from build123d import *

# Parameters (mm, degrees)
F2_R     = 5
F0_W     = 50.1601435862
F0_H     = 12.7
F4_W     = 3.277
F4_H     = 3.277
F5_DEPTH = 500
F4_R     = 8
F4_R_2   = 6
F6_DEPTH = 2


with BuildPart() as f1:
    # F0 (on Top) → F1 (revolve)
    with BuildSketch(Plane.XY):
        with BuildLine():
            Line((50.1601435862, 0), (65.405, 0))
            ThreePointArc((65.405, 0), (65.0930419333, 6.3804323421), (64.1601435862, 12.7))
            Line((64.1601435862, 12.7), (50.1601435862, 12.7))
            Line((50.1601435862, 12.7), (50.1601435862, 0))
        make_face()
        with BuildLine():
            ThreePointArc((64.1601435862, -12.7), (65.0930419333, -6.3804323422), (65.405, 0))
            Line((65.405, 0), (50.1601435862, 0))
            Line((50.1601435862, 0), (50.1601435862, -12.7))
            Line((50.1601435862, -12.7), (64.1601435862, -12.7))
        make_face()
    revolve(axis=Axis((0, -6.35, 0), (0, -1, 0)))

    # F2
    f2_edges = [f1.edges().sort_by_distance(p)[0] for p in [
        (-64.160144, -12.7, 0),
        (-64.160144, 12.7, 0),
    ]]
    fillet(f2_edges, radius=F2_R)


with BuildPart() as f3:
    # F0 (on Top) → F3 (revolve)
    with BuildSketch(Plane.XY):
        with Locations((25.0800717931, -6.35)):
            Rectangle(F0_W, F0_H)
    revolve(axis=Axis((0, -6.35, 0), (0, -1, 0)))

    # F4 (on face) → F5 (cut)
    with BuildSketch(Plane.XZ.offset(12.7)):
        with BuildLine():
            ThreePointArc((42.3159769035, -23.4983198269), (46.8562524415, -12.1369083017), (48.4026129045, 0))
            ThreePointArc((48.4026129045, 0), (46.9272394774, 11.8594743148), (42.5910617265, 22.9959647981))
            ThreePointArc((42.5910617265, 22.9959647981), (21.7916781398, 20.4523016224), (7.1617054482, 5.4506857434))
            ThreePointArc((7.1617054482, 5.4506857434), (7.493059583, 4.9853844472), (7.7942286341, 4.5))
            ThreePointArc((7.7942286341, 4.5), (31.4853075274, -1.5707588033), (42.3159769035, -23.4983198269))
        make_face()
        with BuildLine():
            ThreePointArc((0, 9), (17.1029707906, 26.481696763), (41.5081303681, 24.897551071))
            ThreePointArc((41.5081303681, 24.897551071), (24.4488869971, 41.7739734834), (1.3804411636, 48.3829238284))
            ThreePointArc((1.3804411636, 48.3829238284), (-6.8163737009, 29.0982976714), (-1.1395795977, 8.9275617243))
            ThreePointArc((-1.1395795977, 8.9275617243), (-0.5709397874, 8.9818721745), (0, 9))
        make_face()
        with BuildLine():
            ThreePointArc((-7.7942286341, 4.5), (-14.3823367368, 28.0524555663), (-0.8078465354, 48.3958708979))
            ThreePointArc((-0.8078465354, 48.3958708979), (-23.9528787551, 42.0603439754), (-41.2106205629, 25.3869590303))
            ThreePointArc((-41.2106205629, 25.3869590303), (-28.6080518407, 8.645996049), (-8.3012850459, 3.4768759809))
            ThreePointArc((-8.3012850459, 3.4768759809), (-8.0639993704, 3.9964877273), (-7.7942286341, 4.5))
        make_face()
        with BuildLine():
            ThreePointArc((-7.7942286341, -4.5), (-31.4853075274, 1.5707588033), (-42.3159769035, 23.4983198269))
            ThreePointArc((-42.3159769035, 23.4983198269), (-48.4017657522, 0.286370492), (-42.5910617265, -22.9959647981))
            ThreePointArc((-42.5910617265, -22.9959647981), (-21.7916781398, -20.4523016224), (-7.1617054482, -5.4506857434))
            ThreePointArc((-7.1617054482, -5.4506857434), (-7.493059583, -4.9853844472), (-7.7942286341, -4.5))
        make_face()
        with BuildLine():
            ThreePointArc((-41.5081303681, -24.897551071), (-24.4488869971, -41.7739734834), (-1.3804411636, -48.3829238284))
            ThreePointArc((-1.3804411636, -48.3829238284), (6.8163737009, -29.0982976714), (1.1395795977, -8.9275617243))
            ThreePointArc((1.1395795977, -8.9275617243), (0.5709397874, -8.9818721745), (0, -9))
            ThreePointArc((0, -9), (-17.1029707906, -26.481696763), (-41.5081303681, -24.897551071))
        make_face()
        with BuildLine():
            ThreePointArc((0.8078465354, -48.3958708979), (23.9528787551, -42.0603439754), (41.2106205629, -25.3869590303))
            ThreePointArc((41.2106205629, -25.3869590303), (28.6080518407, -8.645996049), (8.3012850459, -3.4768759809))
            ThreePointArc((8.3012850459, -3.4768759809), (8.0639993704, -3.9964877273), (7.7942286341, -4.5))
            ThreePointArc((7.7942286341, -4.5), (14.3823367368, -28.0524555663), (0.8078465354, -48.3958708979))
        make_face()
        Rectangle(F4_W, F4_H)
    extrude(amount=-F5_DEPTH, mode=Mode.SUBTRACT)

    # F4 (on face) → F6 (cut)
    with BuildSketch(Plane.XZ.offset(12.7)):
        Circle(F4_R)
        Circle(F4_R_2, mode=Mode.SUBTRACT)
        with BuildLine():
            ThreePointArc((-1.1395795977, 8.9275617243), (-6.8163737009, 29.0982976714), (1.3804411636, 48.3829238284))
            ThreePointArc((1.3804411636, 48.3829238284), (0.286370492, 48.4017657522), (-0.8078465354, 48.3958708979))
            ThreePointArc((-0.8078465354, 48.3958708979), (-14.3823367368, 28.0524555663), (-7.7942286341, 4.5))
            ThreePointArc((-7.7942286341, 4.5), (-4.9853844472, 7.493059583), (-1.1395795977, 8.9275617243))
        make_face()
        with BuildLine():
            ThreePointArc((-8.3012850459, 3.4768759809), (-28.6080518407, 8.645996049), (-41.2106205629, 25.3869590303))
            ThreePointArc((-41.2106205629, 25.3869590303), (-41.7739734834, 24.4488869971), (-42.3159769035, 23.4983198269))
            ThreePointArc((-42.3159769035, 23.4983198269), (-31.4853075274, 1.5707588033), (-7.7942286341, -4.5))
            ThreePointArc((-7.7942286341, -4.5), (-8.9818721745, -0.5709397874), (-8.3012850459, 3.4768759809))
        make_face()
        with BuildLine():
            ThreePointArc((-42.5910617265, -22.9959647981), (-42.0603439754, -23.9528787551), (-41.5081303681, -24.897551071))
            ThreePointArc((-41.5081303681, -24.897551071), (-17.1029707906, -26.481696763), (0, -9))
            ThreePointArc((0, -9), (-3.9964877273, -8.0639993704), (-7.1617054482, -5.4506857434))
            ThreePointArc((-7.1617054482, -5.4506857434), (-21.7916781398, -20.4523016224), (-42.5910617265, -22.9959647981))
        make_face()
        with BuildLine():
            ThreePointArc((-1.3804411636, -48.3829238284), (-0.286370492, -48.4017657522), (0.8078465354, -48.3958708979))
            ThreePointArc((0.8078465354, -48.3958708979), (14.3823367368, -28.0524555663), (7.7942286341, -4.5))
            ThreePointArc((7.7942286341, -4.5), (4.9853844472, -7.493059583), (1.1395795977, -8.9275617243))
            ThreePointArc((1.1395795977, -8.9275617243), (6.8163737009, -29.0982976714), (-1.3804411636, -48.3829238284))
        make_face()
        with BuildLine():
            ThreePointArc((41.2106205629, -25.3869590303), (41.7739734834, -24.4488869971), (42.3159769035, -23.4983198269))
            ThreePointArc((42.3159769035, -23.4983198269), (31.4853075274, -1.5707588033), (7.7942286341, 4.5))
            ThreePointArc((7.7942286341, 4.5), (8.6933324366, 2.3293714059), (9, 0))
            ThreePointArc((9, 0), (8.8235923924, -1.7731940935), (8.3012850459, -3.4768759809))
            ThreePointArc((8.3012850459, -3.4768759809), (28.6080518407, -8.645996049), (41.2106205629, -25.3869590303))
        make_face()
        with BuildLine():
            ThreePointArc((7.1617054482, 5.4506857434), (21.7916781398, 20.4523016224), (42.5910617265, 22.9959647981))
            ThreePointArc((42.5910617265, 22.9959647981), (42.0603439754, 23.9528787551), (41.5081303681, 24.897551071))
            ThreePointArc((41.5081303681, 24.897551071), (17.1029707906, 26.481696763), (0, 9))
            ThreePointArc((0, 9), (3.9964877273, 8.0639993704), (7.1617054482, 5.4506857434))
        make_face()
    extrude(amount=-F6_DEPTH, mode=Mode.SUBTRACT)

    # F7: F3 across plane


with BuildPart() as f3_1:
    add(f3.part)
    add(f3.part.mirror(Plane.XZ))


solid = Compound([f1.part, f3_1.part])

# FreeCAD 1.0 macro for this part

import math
import FreeCAD as App
import Part
import Sketcher
from FreeCAD import Vector


def edges_at(feature, points):
    """Names of the edges that pass closest to the given points."""
    edges = feature.Shape.Edges
    near = lambda p: min(range(len(edges)), key=lambda i: edges[i].distToShape(Part.Vertex(*p))[0])
    return sorted({f"Edge{near(p) + 1}" for p in points})

doc = App.newDocument("Part")
body = doc.addObject("PartDesign::Body", "Body")

sketch1 = body.newObject("Sketcher::SketchObject", "Sketch")
sketch1.AttachmentSupport = (doc.getObject("XY_Plane"), [""])
sketch1.MapMode = "FlatFace"
sketch1.addGeometry(Part.ArcOfCircle(Part.Circle(Vector(0, 0, 0), Vector(0, 0, 1), 65.405), math.radians(0), math.radians(11.196519)), False)
sketch1.addGeometry(Part.LineSegment(Vector(64.160144, 12.7, 0), Vector(50.160144, 12.7, 0)), False)
sketch1.addGeometry(Part.LineSegment(Vector(50.160144, 12.7, 0), Vector(50.160144, -12.7, 0)), False)
sketch1.addGeometry(Part.LineSegment(Vector(50.160144, -12.7, 0), Vector(64.160144, -12.7, 0)), False)
sketch1.addGeometry(Part.ArcOfCircle(Part.Circle(Vector(0, 0, 0), Vector(0, 0, 1), 65.405), math.radians(-11.196519), math.radians(0)), False)
sketch1.addConstraint(Sketcher.Constraint("Coincident", 0, 2, 1, 1))
sketch1.addConstraint(Sketcher.Constraint("Coincident", 1, 2, 2, 1))
sketch1.addConstraint(Sketcher.Constraint("Coincident", 2, 2, 3, 1))
sketch1.addConstraint(Sketcher.Constraint("Coincident", 3, 2, 4, 1))
sketch1.addConstraint(Sketcher.Constraint("Tangent", 4, 2, 0, 1))
sketch1.addConstraint(Sketcher.Constraint("Horizontal", 1))
sketch1.addConstraint(Sketcher.Constraint("Vertical", 2))
sketch1.addConstraint(Sketcher.Constraint("Horizontal", 3))
sketch1.addConstraint(Sketcher.Constraint("Coincident", 0, 3, -1, 1))
sketch1.addConstraint(Sketcher.Constraint("Equal", 0, 4))
sketch1.addConstraint(Sketcher.Constraint("PointOnObject", 4, 2, -1))
sketch1.addConstraint(Sketcher.Constraint("Vertical", 0, 2, 3, 2))
sketch1.addConstraint(Sketcher.Constraint("DistanceX", 1, 2, 1, 1, 14.0))
sketch1.addConstraint(Sketcher.Constraint("DistanceY", 2, 2, 2, 1, 25.4))
sketch1.addConstraint(Sketcher.Constraint("Radius", 0, 65.405))
revolution = body.newObject("PartDesign::Revolution", "Revolution")
revolution.Profile = sketch1
revolution.ReferenceAxis = (sketch1, ["V_Axis"])
revolution.Angle = 360
doc.recompute()

fillet = body.newObject("PartDesign::Fillet", "Fillet")
fillet.Base = (revolution, edges_at(revolution, [(-64.16, -12.7, 0), (-64.16, 12.7, 0)]))
fillet.Radius = 5
body2 = doc.addObject("PartDesign::Body", "Body001")

sketch2 = body2.newObject("Sketcher::SketchObject", "Sketch001")
sketch2.AttachmentSupport = (doc.getObject("XY_Plane001"), [""])
sketch2.MapMode = "FlatFace"
sketch2.addGeometry(Part.LineSegment(Vector(0, 0, 0), Vector(0, -12.7, 0)), False)
sketch2.addGeometry(Part.LineSegment(Vector(0, -12.7, 0), Vector(50.160144, -12.7, 0)), False)
sketch2.addGeometry(Part.LineSegment(Vector(50.160144, -12.7, 0), Vector(50.160144, 0, 0)), False)
sketch2.addGeometry(Part.LineSegment(Vector(50.160144, 0, 0), Vector(0, 0, 0)), False)
sketch2.addConstraint(Sketcher.Constraint("Coincident", 0, 2, 1, 1))
sketch2.addConstraint(Sketcher.Constraint("Coincident", 1, 2, 2, 1))
sketch2.addConstraint(Sketcher.Constraint("Coincident", 2, 2, 3, 1))
sketch2.addConstraint(Sketcher.Constraint("Coincident", 3, 2, 0, 1))
sketch2.addConstraint(Sketcher.Constraint("Vertical", 0))
sketch2.addConstraint(Sketcher.Constraint("Horizontal", 1))
sketch2.addConstraint(Sketcher.Constraint("Vertical", 2))
sketch2.addConstraint(Sketcher.Constraint("Horizontal", 3))
sketch2.addConstraint(Sketcher.Constraint("Coincident", 3, 2, -1, 1))
sketch2.addConstraint(Sketcher.Constraint("DistanceY", 0, 2, 0, 1, 12.7))
sketch2.addConstraint(Sketcher.Constraint("DistanceX", 1, 1, 1, 2, 50.160144))
revolution2 = body2.newObject("PartDesign::Revolution", "Revolution001")
revolution2.Profile = sketch2
revolution2.ReferenceAxis = (sketch2, ["V_Axis"])
revolution2.Angle = 360

sketch3 = body2.newObject("Sketcher::SketchObject", "Sketch002")
sketch3.AttachmentSupport = (doc.getObject("XZ_Plane001"), [""])
sketch3.MapMode = "FlatFace"
sketch3.AttachmentOffset = App.Placement(Vector(0, 0, 12.7), App.Rotation())
sketch3.addGeometry(Part.ArcOfCircle(Part.Circle(Vector(0, 0, 0), Vector(0, 0, 1), 48.402613), math.radians(-29.043681), math.radians(0)), False)
sketch3.addGeometry(Part.ArcOfCircle(Part.Circle(Vector(0, 0, 0), Vector(0, 0, 1), 48.402613), math.radians(0), math.radians(28.365704)), False)
sketch3.addGeometry(Part.ArcOfCircle(Part.Circle(Vector(35.808351, -7.851704, 0), Vector(0, 0, 1), 31.584551), math.radians(77.599272), math.radians(155.091674)), False)
sketch3.addGeometry(Part.ArcOfCircle(Part.Circle(Vector(0, 0, 0), Vector(0, 0, 1), 9), math.radians(30), math.radians(37.274316)), False)
sketch3.addGeometry(Part.ArcOfCircle(Part.Circle(Vector(13.031462, -24.324232, 0), Vector(0, 0, 1), 29.296159), math.radians(1.615486), math.radians(100.298042)), False)
sketch3.addGeometry(Part.ArcOfCircle(Part.Circle(Vector(27.581134, -0.876539, 0), Vector(0, 0, 1), 29.296159), math.radians(61.615486), math.radians(160.298042)), False)
sketch3.addGeometry(Part.ArcOfCircle(Part.Circle(Vector(0, 0, 0), Vector(0, 0, 1), 48.402613), math.radians(30.956319), math.radians(88.365704)), False)
sketch3.addGeometry(Part.ArcOfCircle(Part.Circle(Vector(24.703951, 27.085089, 0), Vector(0, 0, 1), 31.584551), math.radians(137.599272), math.radians(215.091674)), False)
sketch3.addGeometry(Part.ArcOfCircle(Part.Circle(Vector(0, 0, 0), Vector(0, 0, 1), 9), math.radians(90), math.radians(97.274316)), False)
sketch3.addGeometry(Part.ArcOfCircle(Part.Circle(Vector(14.549672, 23.447693, 0), Vector(0, 0, 1), 29.296159), math.radians(121.615486), math.radians(220.298042)), False)
sketch3.addGeometry(Part.ArcOfCircle(Part.Circle(Vector(0, 0, 0), Vector(0, 0, 1), 48.402613), math.radians(90.956319), math.radians(148.365704)), False)
sketch3.addGeometry(Part.ArcOfCircle(Part.Circle(Vector(-11.1044, 34.936793, 0), Vector(0, 0, 1), 31.584551), math.radians(-162.400728), math.radians(-84.908326)), False)
sketch3.addGeometry(Part.ArcOfCircle(Part.Circle(Vector(0, 0, 0), Vector(0, 0, 1), 9), math.radians(150), math.radians(157.274316)), False)
sketch3.addGeometry(Part.ArcOfCircle(Part.Circle(Vector(-13.031462, 24.324232, 0), Vector(0, 0, 1), 29.296159), math.radians(-178.384514), math.radians(-79.701958)), False)
sketch3.addGeometry(Part.ArcOfCircle(Part.Circle(Vector(0, 0, 0), Vector(0, 0, 1), 48.402613), math.radians(150.956319), math.radians(208.365704)), False)
sketch3.addGeometry(Part.ArcOfCircle(Part.Circle(Vector(-35.808351, 7.851704, 0), Vector(0, 0, 1), 31.584551), math.radians(-102.400728), math.radians(-24.908326)), False)
sketch3.addGeometry(Part.ArcOfCircle(Part.Circle(Vector(0, 0, 0), Vector(0, 0, 1), 9), math.radians(-150), math.radians(-142.725684)), False)
sketch3.addGeometry(Part.ArcOfCircle(Part.Circle(Vector(0, 0, 0), Vector(0, 0, 1), 48.402613), math.radians(-149.043681), math.radians(-91.634296)), False)
sketch3.addGeometry(Part.ArcOfCircle(Part.Circle(Vector(-24.703951, -27.085089, 0), Vector(0, 0, 1), 31.584551), math.radians(-42.400728), math.radians(35.091674)), False)
sketch3.addGeometry(Part.ArcOfCircle(Part.Circle(Vector(0, 0, 0), Vector(0, 0, 1), 9), math.radians(-90), math.radians(-82.725684)), False)
sketch3.addGeometry(Part.ArcOfCircle(Part.Circle(Vector(-27.581134, 0.876539, 0), Vector(0, 0, 1), 29.296159), math.radians(-118.384514), math.radians(-19.701958)), False)
sketch3.addGeometry(Part.ArcOfCircle(Part.Circle(Vector(0, 0, 0), Vector(0, 0, 1), 48.402613), math.radians(-89.043681), math.radians(-31.634296)), False)
sketch3.addGeometry(Part.ArcOfCircle(Part.Circle(Vector(11.1044, -34.936793, 0), Vector(0, 0, 1), 31.584551), math.radians(17.599272), math.radians(95.091674)), False)
sketch3.addGeometry(Part.ArcOfCircle(Part.Circle(Vector(0, 0, 0), Vector(0, 0, 1), 9), math.radians(-30), math.radians(-22.725684)), False)
sketch3.addGeometry(Part.ArcOfCircle(Part.Circle(Vector(-14.549672, -23.447693, 0), Vector(0, 0, 1), 29.296159), math.radians(-58.384514), math.radians(40.298042)), False)
sketch3.addGeometry(Part.LineSegment(Vector(-1.6385, 1.6385, 0), Vector(-1.6385, -1.6385, 0)), False)
sketch3.addGeometry(Part.LineSegment(Vector(-1.6385, -1.6385, 0), Vector(1.6385, -1.6385, 0)), False)
sketch3.addGeometry(Part.LineSegment(Vector(1.6385, -1.6385, 0), Vector(1.6385, 1.6385, 0)), False)
sketch3.addGeometry(Part.LineSegment(Vector(1.6385, 1.6385, 0), Vector(-1.6385, 1.6385, 0)), False)
sketch3.addConstraint(Sketcher.Constraint("Tangent", 0, 2, 1, 1))
sketch3.addConstraint(Sketcher.Constraint("Coincident", 1, 2, 2, 1))
sketch3.addConstraint(Sketcher.Constraint("Coincident", 2, 2, 3, 2))
sketch3.addConstraint(Sketcher.Constraint("Coincident", 3, 1, 4, 2))
sketch3.addConstraint(Sketcher.Constraint("Coincident", 4, 1, 0, 1))
sketch3.addConstraint(Sketcher.Constraint("Coincident", 5, 1, 6, 1))
sketch3.addConstraint(Sketcher.Constraint("Coincident", 6, 2, 7, 1))
sketch3.addConstraint(Sketcher.Constraint("Coincident", 7, 2, 8, 2))
sketch3.addConstraint(Sketcher.Constraint("Coincident", 8, 1, 5, 2))
sketch3.addConstraint(Sketcher.Constraint("Coincident", 9, 1, 10, 1))
sketch3.addConstraint(Sketcher.Constraint("Coincident", 10, 2, 11, 1))
sketch3.addConstraint(Sketcher.Constraint("Coincident", 11, 2, 12, 2))
sketch3.addConstraint(Sketcher.Constraint("Coincident", 12, 1, 9, 2))
sketch3.addConstraint(Sketcher.Constraint("Coincident", 13, 1, 14, 1))
sketch3.addConstraint(Sketcher.Constraint("Coincident", 14, 2, 15, 1))
sketch3.addConstraint(Sketcher.Constraint("Coincident", 15, 2, 16, 2))
sketch3.addConstraint(Sketcher.Constraint("Coincident", 16, 1, 13, 2))
sketch3.addConstraint(Sketcher.Constraint("Coincident", 17, 2, 18, 1))
sketch3.addConstraint(Sketcher.Constraint("Coincident", 18, 2, 19, 2))
sketch3.addConstraint(Sketcher.Constraint("Coincident", 19, 1, 20, 2))
sketch3.addConstraint(Sketcher.Constraint("Coincident", 20, 1, 17, 1))
sketch3.addConstraint(Sketcher.Constraint("Coincident", 21, 2, 22, 1))
sketch3.addConstraint(Sketcher.Constraint("Coincident", 22, 2, 23, 2))
sketch3.addConstraint(Sketcher.Constraint("Coincident", 23, 1, 24, 2))
sketch3.addConstraint(Sketcher.Constraint("Coincident", 24, 1, 21, 1))
sketch3.addConstraint(Sketcher.Constraint("Coincident", 25, 2, 26, 1))
sketch3.addConstraint(Sketcher.Constraint("Coincident", 26, 2, 27, 1))
sketch3.addConstraint(Sketcher.Constraint("Coincident", 27, 2, 28, 1))
sketch3.addConstraint(Sketcher.Constraint("Coincident", 28, 2, 25, 1))
sketch3.addConstraint(Sketcher.Constraint("Vertical", 25))
sketch3.addConstraint(Sketcher.Constraint("Horizontal", 26))
sketch3.addConstraint(Sketcher.Constraint("Vertical", 27))
sketch3.addConstraint(Sketcher.Constraint("Horizontal", 28))
sketch3.addConstraint(Sketcher.Constraint("Coincident", 0, 3, -1, 1))
sketch3.addConstraint(Sketcher.Constraint("Coincident", 3, 3, -1, 1))
sketch3.addConstraint(Sketcher.Constraint("Coincident", 6, 3, -1, 1))
sketch3.addConstraint(Sketcher.Constraint("Coincident", 8, 3, -1, 1))
sketch3.addConstraint(Sketcher.Constraint("Coincident", 10, 3, -1, 1))
sketch3.addConstraint(Sketcher.Constraint("Coincident", 12, 3, -1, 1))
sketch3.addConstraint(Sketcher.Constraint("Coincident", 14, 3, -1, 1))
sketch3.addConstraint(Sketcher.Constraint("Coincident", 16, 3, -1, 1))
sketch3.addConstraint(Sketcher.Constraint("Coincident", 17, 3, -1, 1))
sketch3.addConstraint(Sketcher.Constraint("Coincident", 19, 3, -1, 1))
sketch3.addConstraint(Sketcher.Constraint("Coincident", 21, 3, -1, 1))
sketch3.addConstraint(Sketcher.Constraint("Coincident", 23, 3, -1, 1))
sketch3.addConstraint(Sketcher.Constraint("Equal", 0, 1))
sketch3.addConstraint(Sketcher.Constraint("Equal", 4, 5))
sketch3.addConstraint(Sketcher.Constraint("Equal", 1, 6))
sketch3.addConstraint(Sketcher.Constraint("Equal", 2, 7))
sketch3.addConstraint(Sketcher.Constraint("Equal", 3, 8))
sketch3.addConstraint(Sketcher.Constraint("Equal", 5, 9))
sketch3.addConstraint(Sketcher.Constraint("Equal", 6, 10))
sketch3.addConstraint(Sketcher.Constraint("Equal", 7, 11))
sketch3.addConstraint(Sketcher.Constraint("Equal", 8, 12))
sketch3.addConstraint(Sketcher.Constraint("Equal", 9, 13))
sketch3.addConstraint(Sketcher.Constraint("Equal", 10, 14))
sketch3.addConstraint(Sketcher.Constraint("Equal", 11, 15))
sketch3.addConstraint(Sketcher.Constraint("Equal", 12, 16))
sketch3.addConstraint(Sketcher.Constraint("Equal", 14, 17))
sketch3.addConstraint(Sketcher.Constraint("Equal", 15, 18))
sketch3.addConstraint(Sketcher.Constraint("Equal", 16, 19))
sketch3.addConstraint(Sketcher.Constraint("Equal", 13, 20))
sketch3.addConstraint(Sketcher.Constraint("Equal", 17, 21))
sketch3.addConstraint(Sketcher.Constraint("Equal", 18, 22))
sketch3.addConstraint(Sketcher.Constraint("Equal", 19, 23))
sketch3.addConstraint(Sketcher.Constraint("Equal", 20, 24))
sketch3.addConstraint(Sketcher.Constraint("Symmetric", 4, 3, 13, 3, -1, 1))
sketch3.addConstraint(Sketcher.Constraint("Symmetric", 2, 3, 15, 3, -1, 1))
sketch3.addConstraint(Sketcher.Constraint("Symmetric", 7, 3, 18, 3, -1, 1))
sketch3.addConstraint(Sketcher.Constraint("Symmetric", 5, 3, 20, 3, -1, 1))
sketch3.addConstraint(Sketcher.Constraint("Symmetric", 11, 3, 22, 3, -1, 1))
sketch3.addConstraint(Sketcher.Constraint("Symmetric", 9, 3, 24, 3, -1, 1))
sketch3.addConstraint(Sketcher.Constraint("Symmetric", 25, 2, 27, 2, -1, 1))
sketch3.addConstraint(Sketcher.Constraint("PointOnObject", 0, 2, -1))
sketch3.addConstraint(Sketcher.Constraint("PointOnObject", 8, 1, -2))
sketch3.addConstraint(Sketcher.Constraint("Horizontal", 3, 1, 12, 1))
sketch3.addConstraint(Sketcher.Constraint("Equal", 28, 25))
sketch3.addConstraint(Sketcher.Constraint("Radius", 3, 9.0))
sketch3.addConstraint(Sketcher.Constraint("DistanceY", -1, 1, 3, 1, 4.5))
sketch3.addConstraint(Sketcher.Constraint("DistanceX", 26, 1, 26, 2, 3.277))
sketch3.addConstraint(Sketcher.Constraint("Radius", 2, 31.584551))
sketch3.addConstraint(Sketcher.Constraint("Radius", 4, 29.296159))
sketch3.addConstraint(Sketcher.Constraint("Radius", 0, 48.402613))
sketch3.addConstraint(Sketcher.Constraint("DistanceX", 11, 3, -1, 1, 11.1044))
sketch3.addConstraint(Sketcher.Constraint("DistanceY", 9, 3, 11, 3, 11.489101))
sketch3.addConstraint(Sketcher.Constraint("DistanceX", -1, 1, 2, 3, 35.808351))
sketch3.addConstraint(Sketcher.Constraint("DistanceX", -1, 1, 4, 3, 13.031462))
sketch3.addConstraint(Sketcher.Constraint("DistanceY", 5, 3, -1, 1, 0.876539))
sketch3.addConstraint(Sketcher.Constraint("DistanceX", -1, 1, 7, 3, 24.703951))
sketch3.addConstraint(Sketcher.Constraint("DistanceY", -1, 1, 7, 3, 27.085089))
sketch3.addConstraint(Sketcher.Constraint("DistanceX", -1, 1, 9, 3, 14.549672))
sketch3.addConstraint(Sketcher.Constraint("DistanceX", -1, 1, 1, 2, 42.591062))
pocket1 = body2.newObject("PartDesign::Pocket", "Pocket")
pocket1.Profile = sketch3
pocket1.Length = 500

sketch4 = body2.newObject("Sketcher::SketchObject", "Sketch003")
sketch4.AttachmentSupport = (doc.getObject("XZ_Plane001"), [""])
sketch4.MapMode = "FlatFace"
sketch4.AttachmentOffset = App.Placement(Vector(0, 0, 12.7), App.Rotation())
sketch4.addGeometry(Part.Circle(Vector(0, 0, 0), Vector(0, 0, 1), 8), False)
sketch4.addGeometry(Part.Circle(Vector(0, 0, 0), Vector(0, 0, 1), 6), False)
sketch4.addGeometry(Part.ArcOfCircle(Part.Circle(Vector(24.703951, 27.085089, 0), Vector(0, 0, 1), 31.584551), math.radians(137.599272), math.radians(215.091674)), False)
sketch4.addGeometry(Part.ArcOfCircle(Part.Circle(Vector(0, 0, 0), Vector(0, 0, 1), 48.402613), math.radians(88.365704), math.radians(90.956319)), False)
sketch4.addGeometry(Part.ArcOfCircle(Part.Circle(Vector(14.549672, 23.447693, 0), Vector(0, 0, 1), 29.296159), math.radians(121.615486), math.radians(220.298042)), False)
sketch4.addGeometry(Part.ArcOfCircle(Part.Circle(Vector(0, 0, 0), Vector(0, 0, 1), 9), math.radians(97.274316), math.radians(150)), False)
sketch4.addGeometry(Part.ArcOfCircle(Part.Circle(Vector(-11.1044, 34.936793, 0), Vector(0, 0, 1), 31.584551), math.radians(-162.400728), math.radians(-84.908326)), False)
sketch4.addGeometry(Part.ArcOfCircle(Part.Circle(Vector(0, 0, 0), Vector(0, 0, 1), 48.402613), math.radians(148.365704), math.radians(150.956319)), False)
sketch4.addGeometry(Part.ArcOfCircle(Part.Circle(Vector(-13.031462, 24.324232, 0), Vector(0, 0, 1), 29.296159), math.radians(-178.384514), math.radians(-79.701958)), False)
sketch4.addGeometry(Part.ArcOfCircle(Part.Circle(Vector(0, 0, 0), Vector(0, 0, 1), 9), math.radians(157.274316), math.radians(210)), False)
sketch4.addGeometry(Part.ArcOfCircle(Part.Circle(Vector(0, 0, 0), Vector(0, 0, 1), 48.402613), math.radians(-151.634296), math.radians(-149.043681)), False)
sketch4.addGeometry(Part.ArcOfCircle(Part.Circle(Vector(-27.581134, 0.876539, 0), Vector(0, 0, 1), 29.296159), math.radians(-118.384514), math.radians(-19.701958)), False)
sketch4.addGeometry(Part.ArcOfCircle(Part.Circle(Vector(0, 0, 0), Vector(0, 0, 1), 9), math.radians(-142.725684), math.radians(-90)), False)
sketch4.addGeometry(Part.ArcOfCircle(Part.Circle(Vector(-35.808351, 7.851704, 0), Vector(0, 0, 1), 31.584551), math.radians(-102.400728), math.radians(-24.908326)), False)
sketch4.addGeometry(Part.ArcOfCircle(Part.Circle(Vector(0, 0, 0), Vector(0, 0, 1), 48.402613), math.radians(-91.634296), math.radians(-89.043681)), False)
sketch4.addGeometry(Part.ArcOfCircle(Part.Circle(Vector(-14.549672, -23.447693, 0), Vector(0, 0, 1), 29.296159), math.radians(-58.384514), math.radians(40.298042)), False)
sketch4.addGeometry(Part.ArcOfCircle(Part.Circle(Vector(0, 0, 0), Vector(0, 0, 1), 9), math.radians(-82.725684), math.radians(-30)), False)
sketch4.addGeometry(Part.ArcOfCircle(Part.Circle(Vector(-24.703951, -27.085089, 0), Vector(0, 0, 1), 31.584551), math.radians(-42.400728), math.radians(35.091674)), False)
sketch4.addGeometry(Part.ArcOfCircle(Part.Circle(Vector(0, 0, 0), Vector(0, 0, 1), 48.402613), math.radians(-31.634296), math.radians(-29.043681)), False)
sketch4.addGeometry(Part.ArcOfCircle(Part.Circle(Vector(13.031462, -24.324232, 0), Vector(0, 0, 1), 29.296159), math.radians(1.615486), math.radians(100.298042)), False)
sketch4.addGeometry(Part.ArcOfCircle(Part.Circle(Vector(0, 0, 0), Vector(0, 0, 1), 9), math.radians(0), math.radians(30)), False)
sketch4.addGeometry(Part.ArcOfCircle(Part.Circle(Vector(0, 0, 0), Vector(0, 0, 1), 9), math.radians(-22.725684), math.radians(0)), False)
sketch4.addGeometry(Part.ArcOfCircle(Part.Circle(Vector(11.1044, -34.936793, 0), Vector(0, 0, 1), 31.584551), math.radians(17.599272), math.radians(95.091674)), False)
sketch4.addGeometry(Part.ArcOfCircle(Part.Circle(Vector(35.808351, -7.851704, 0), Vector(0, 0, 1), 31.584551), math.radians(77.599272), math.radians(155.091674)), False)
sketch4.addGeometry(Part.ArcOfCircle(Part.Circle(Vector(0, 0, 0), Vector(0, 0, 1), 48.402613), math.radians(28.365704), math.radians(30.956319)), False)
sketch4.addGeometry(Part.ArcOfCircle(Part.Circle(Vector(27.581134, -0.876539, 0), Vector(0, 0, 1), 29.296159), math.radians(61.615486), math.radians(160.298042)), False)
sketch4.addGeometry(Part.ArcOfCircle(Part.Circle(Vector(0, 0, 0), Vector(0, 0, 1), 9), math.radians(37.274316), math.radians(90)), False)
sketch4.addConstraint(Sketcher.Constraint("Coincident", 2, 1, 3, 1))
sketch4.addConstraint(Sketcher.Constraint("Coincident", 3, 2, 4, 1))
sketch4.addConstraint(Sketcher.Constraint("Coincident", 4, 2, 5, 2))
sketch4.addConstraint(Sketcher.Constraint("Coincident", 5, 1, 2, 2))
sketch4.addConstraint(Sketcher.Constraint("Coincident", 6, 1, 7, 1))
sketch4.addConstraint(Sketcher.Constraint("Coincident", 7, 2, 8, 1))
sketch4.addConstraint(Sketcher.Constraint("Coincident", 8, 2, 9, 2))
sketch4.addConstraint(Sketcher.Constraint("Coincident", 9, 1, 6, 2))
sketch4.addConstraint(Sketcher.Constraint("Coincident", 10, 2, 11, 1))
sketch4.addConstraint(Sketcher.Constraint("Coincident", 11, 2, 12, 2))
sketch4.addConstraint(Sketcher.Constraint("Coincident", 12, 1, 13, 2))
sketch4.addConstraint(Sketcher.Constraint("Coincident", 13, 1, 10, 1))
sketch4.addConstraint(Sketcher.Constraint("Coincident", 14, 2, 15, 1))
sketch4.addConstraint(Sketcher.Constraint("Coincident", 15, 2, 16, 2))
sketch4.addConstraint(Sketcher.Constraint("Coincident", 16, 1, 17, 2))
sketch4.addConstraint(Sketcher.Constraint("Coincident", 17, 1, 14, 1))
sketch4.addConstraint(Sketcher.Constraint("Coincident", 18, 2, 19, 1))
sketch4.addConstraint(Sketcher.Constraint("Coincident", 19, 2, 20, 2))
sketch4.addConstraint(Sketcher.Constraint("Tangent", 20, 1, 21, 2))
sketch4.addConstraint(Sketcher.Constraint("Coincident", 21, 1, 22, 2))
sketch4.addConstraint(Sketcher.Constraint("Coincident", 22, 1, 18, 1))
sketch4.addConstraint(Sketcher.Constraint("Coincident", 23, 1, 24, 1))
sketch4.addConstraint(Sketcher.Constraint("Coincident", 24, 2, 25, 1))
sketch4.addConstraint(Sketcher.Constraint("Coincident", 25, 2, 26, 2))
sketch4.addConstraint(Sketcher.Constraint("Coincident", 26, 1, 23, 2))
sketch4.addConstraint(Sketcher.Constraint("Coincident", 0, 3, -1, 1))
sketch4.addConstraint(Sketcher.Constraint("Coincident", 1, 3, -1, 1))
sketch4.addConstraint(Sketcher.Constraint("Coincident", 3, 3, -1, 1))
sketch4.addConstraint(Sketcher.Constraint("Coincident", 5, 3, -1, 1))
sketch4.addConstraint(Sketcher.Constraint("Coincident", 7, 3, -1, 1))
sketch4.addConstraint(Sketcher.Constraint("Coincident", 9, 3, -1, 1))
sketch4.addConstraint(Sketcher.Constraint("Coincident", 10, 3, -1, 1))
sketch4.addConstraint(Sketcher.Constraint("Coincident", 12, 3, -1, 1))
sketch4.addConstraint(Sketcher.Constraint("Coincident", 14, 3, -1, 1))
sketch4.addConstraint(Sketcher.Constraint("Coincident", 16, 3, -1, 1))
sketch4.addConstraint(Sketcher.Constraint("Coincident", 18, 3, -1, 1))
sketch4.addConstraint(Sketcher.Constraint("Coincident", 20, 3, -1, 1))
sketch4.addConstraint(Sketcher.Constraint("Coincident", 24, 3, -1, 1))
sketch4.addConstraint(Sketcher.Constraint("Coincident", 26, 3, -1, 1))
sketch4.addConstraint(Sketcher.Constraint("Equal", 2, 6))
sketch4.addConstraint(Sketcher.Constraint("Equal", 3, 7))
sketch4.addConstraint(Sketcher.Constraint("Equal", 4, 8))
sketch4.addConstraint(Sketcher.Constraint("Equal", 5, 9))
sketch4.addConstraint(Sketcher.Constraint("Equal", 7, 10))
sketch4.addConstraint(Sketcher.Constraint("Equal", 8, 11))
sketch4.addConstraint(Sketcher.Constraint("Equal", 9, 12))
sketch4.addConstraint(Sketcher.Constraint("Equal", 6, 13))
sketch4.addConstraint(Sketcher.Constraint("Equal", 10, 14))
sketch4.addConstraint(Sketcher.Constraint("Equal", 11, 15))
sketch4.addConstraint(Sketcher.Constraint("Equal", 12, 16))
sketch4.addConstraint(Sketcher.Constraint("Equal", 13, 17))
sketch4.addConstraint(Sketcher.Constraint("Equal", 14, 18))
sketch4.addConstraint(Sketcher.Constraint("Equal", 15, 19))
sketch4.addConstraint(Sketcher.Constraint("Equal", 16, 20))
sketch4.addConstraint(Sketcher.Constraint("Equal", 20, 21))
sketch4.addConstraint(Sketcher.Constraint("Equal", 17, 22))
sketch4.addConstraint(Sketcher.Constraint("Equal", 22, 23))
sketch4.addConstraint(Sketcher.Constraint("Equal", 18, 24))
sketch4.addConstraint(Sketcher.Constraint("Equal", 19, 25))
sketch4.addConstraint(Sketcher.Constraint("Equal", 21, 26))
sketch4.addConstraint(Sketcher.Constraint("Symmetric", 4, 3, 15, 3, -1, 1))
sketch4.addConstraint(Sketcher.Constraint("Symmetric", 2, 3, 17, 3, -1, 1))
sketch4.addConstraint(Sketcher.Constraint("Symmetric", 8, 3, 19, 3, -1, 1))
sketch4.addConstraint(Sketcher.Constraint("Symmetric", 6, 3, 22, 3, -1, 1))
sketch4.addConstraint(Sketcher.Constraint("Symmetric", 13, 3, 23, 3, -1, 1))
sketch4.addConstraint(Sketcher.Constraint("Symmetric", 11, 3, 25, 3, -1, 1))
sketch4.addConstraint(Sketcher.Constraint("PointOnObject", 11, 2, -2))
sketch4.addConstraint(Sketcher.Constraint("PointOnObject", 20, 1, -1))
sketch4.addConstraint(Sketcher.Constraint("Horizontal", 8, 2, 15, 2))
sketch4.addConstraint(Sketcher.Constraint("Diameter", 0, 16.0))
sketch4.addConstraint(Sketcher.Constraint("Diameter", 1, 12.0))
sketch4.addConstraint(Sketcher.Constraint("Radius", 5, 9.0))
sketch4.addConstraint(Sketcher.Constraint("DistanceY", -1, 1, 4, 2, 4.5))
sketch4.addConstraint(Sketcher.Constraint("Radius", 2, 31.584551))
sketch4.addConstraint(Sketcher.Constraint("Radius", 4, 29.296159))
sketch4.addConstraint(Sketcher.Constraint("Radius", 3, 48.402613))
sketch4.addConstraint(Sketcher.Constraint("DistanceX", 6, 3, -1, 1, 11.1044))
sketch4.addConstraint(Sketcher.Constraint("DistanceY", 4, 3, 6, 3, 11.489101))
sketch4.addConstraint(Sketcher.Constraint("DistanceX", 10, 2, 8, 2, 33.713902))
sketch4.addConstraint(Sketcher.Constraint("DistanceX", -1, 1, 2, 3, 24.703951))
sketch4.addConstraint(Sketcher.Constraint("DistanceY", -1, 1, 2, 3, 27.085089))
sketch4.addConstraint(Sketcher.Constraint("DistanceX", -1, 1, 4, 3, 14.549672))
sketch4.addConstraint(Sketcher.Constraint("DistanceX", 8, 3, -1, 1, 13.031462))
sketch4.addConstraint(Sketcher.Constraint("DistanceX", 13, 3, -1, 1, 35.808351))
sketch4.addConstraint(Sketcher.Constraint("DistanceX", 13, 1, -1, 1, 42.591062))
pocket2 = body2.newObject("PartDesign::Pocket", "Pocket001")
pocket2.Profile = sketch4
pocket2.Length = 2
body3 = doc.addObject("PartDesign::Body", "Body002")
doc.recompute()

body3.BaseFeature = body2
doc.recompute()

mirroring = doc.addObject("Part::Mirroring", "Mirroring")
mirroring.Source = body2
mirroring.Base = Vector(0, 0, 0)
mirroring.Normal = Vector(0, -1, 0)
body4 = doc.addObject("PartDesign::Body", "Body003")
body4.BaseFeature = mirroring
boolean = body3.newObject("PartDesign::Boolean", "Boolean")
boolean.Type = "Fuse"
boolean.addObjects([body4])
doc.recompute()
mirroring.Visibility = False

doc.recompute()
